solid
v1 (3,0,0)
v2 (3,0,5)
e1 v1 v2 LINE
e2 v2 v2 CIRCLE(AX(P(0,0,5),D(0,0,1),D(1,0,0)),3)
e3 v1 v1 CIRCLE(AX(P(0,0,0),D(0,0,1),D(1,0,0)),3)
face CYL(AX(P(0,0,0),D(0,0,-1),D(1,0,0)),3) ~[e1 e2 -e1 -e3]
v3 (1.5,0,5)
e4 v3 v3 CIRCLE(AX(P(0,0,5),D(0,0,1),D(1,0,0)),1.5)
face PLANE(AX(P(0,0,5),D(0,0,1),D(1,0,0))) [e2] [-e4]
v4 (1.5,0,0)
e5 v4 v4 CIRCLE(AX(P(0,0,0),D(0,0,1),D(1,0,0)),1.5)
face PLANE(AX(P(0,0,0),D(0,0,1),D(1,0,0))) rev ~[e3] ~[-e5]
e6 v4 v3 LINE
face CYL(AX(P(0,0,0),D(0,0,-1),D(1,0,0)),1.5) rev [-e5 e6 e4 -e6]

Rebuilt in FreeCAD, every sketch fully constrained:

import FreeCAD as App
import Part
import Sketcher
from FreeCAD import Vector

doc = App.newDocument("Part")
body = doc.addObject("PartDesign::Body", "Body")

sketch1 = body.newObject("Sketcher::SketchObject", "Sketch")
sketch1.AttachmentSupport = (doc.getObject("XY_Plane"), [""])
sketch1.MapMode = "FlatFace"
sketch1.addGeometry([
    Part.Circle(Vector(0, 0, 0), Vector(0, 0, 1), 3),
    Part.Circle(Vector(0, 0, 0), Vector(0, 0, 1), 1.5),
], False)
sketch1.addConstraint([
    Sketcher.Constraint("Coincident", 0, 3, -1, 1),
    Sketcher.Constraint("Coincident", 1, 3, -1, 1),
    Sketcher.Constraint("Diameter", 0, 6.0),
    Sketcher.Constraint("Diameter", 1, 3.0),
])
pad1 = body.newObject("PartDesign::Pad", "Pad")
pad1.Profile = sketch1
pad1.Length = 5

doc.recompute()
